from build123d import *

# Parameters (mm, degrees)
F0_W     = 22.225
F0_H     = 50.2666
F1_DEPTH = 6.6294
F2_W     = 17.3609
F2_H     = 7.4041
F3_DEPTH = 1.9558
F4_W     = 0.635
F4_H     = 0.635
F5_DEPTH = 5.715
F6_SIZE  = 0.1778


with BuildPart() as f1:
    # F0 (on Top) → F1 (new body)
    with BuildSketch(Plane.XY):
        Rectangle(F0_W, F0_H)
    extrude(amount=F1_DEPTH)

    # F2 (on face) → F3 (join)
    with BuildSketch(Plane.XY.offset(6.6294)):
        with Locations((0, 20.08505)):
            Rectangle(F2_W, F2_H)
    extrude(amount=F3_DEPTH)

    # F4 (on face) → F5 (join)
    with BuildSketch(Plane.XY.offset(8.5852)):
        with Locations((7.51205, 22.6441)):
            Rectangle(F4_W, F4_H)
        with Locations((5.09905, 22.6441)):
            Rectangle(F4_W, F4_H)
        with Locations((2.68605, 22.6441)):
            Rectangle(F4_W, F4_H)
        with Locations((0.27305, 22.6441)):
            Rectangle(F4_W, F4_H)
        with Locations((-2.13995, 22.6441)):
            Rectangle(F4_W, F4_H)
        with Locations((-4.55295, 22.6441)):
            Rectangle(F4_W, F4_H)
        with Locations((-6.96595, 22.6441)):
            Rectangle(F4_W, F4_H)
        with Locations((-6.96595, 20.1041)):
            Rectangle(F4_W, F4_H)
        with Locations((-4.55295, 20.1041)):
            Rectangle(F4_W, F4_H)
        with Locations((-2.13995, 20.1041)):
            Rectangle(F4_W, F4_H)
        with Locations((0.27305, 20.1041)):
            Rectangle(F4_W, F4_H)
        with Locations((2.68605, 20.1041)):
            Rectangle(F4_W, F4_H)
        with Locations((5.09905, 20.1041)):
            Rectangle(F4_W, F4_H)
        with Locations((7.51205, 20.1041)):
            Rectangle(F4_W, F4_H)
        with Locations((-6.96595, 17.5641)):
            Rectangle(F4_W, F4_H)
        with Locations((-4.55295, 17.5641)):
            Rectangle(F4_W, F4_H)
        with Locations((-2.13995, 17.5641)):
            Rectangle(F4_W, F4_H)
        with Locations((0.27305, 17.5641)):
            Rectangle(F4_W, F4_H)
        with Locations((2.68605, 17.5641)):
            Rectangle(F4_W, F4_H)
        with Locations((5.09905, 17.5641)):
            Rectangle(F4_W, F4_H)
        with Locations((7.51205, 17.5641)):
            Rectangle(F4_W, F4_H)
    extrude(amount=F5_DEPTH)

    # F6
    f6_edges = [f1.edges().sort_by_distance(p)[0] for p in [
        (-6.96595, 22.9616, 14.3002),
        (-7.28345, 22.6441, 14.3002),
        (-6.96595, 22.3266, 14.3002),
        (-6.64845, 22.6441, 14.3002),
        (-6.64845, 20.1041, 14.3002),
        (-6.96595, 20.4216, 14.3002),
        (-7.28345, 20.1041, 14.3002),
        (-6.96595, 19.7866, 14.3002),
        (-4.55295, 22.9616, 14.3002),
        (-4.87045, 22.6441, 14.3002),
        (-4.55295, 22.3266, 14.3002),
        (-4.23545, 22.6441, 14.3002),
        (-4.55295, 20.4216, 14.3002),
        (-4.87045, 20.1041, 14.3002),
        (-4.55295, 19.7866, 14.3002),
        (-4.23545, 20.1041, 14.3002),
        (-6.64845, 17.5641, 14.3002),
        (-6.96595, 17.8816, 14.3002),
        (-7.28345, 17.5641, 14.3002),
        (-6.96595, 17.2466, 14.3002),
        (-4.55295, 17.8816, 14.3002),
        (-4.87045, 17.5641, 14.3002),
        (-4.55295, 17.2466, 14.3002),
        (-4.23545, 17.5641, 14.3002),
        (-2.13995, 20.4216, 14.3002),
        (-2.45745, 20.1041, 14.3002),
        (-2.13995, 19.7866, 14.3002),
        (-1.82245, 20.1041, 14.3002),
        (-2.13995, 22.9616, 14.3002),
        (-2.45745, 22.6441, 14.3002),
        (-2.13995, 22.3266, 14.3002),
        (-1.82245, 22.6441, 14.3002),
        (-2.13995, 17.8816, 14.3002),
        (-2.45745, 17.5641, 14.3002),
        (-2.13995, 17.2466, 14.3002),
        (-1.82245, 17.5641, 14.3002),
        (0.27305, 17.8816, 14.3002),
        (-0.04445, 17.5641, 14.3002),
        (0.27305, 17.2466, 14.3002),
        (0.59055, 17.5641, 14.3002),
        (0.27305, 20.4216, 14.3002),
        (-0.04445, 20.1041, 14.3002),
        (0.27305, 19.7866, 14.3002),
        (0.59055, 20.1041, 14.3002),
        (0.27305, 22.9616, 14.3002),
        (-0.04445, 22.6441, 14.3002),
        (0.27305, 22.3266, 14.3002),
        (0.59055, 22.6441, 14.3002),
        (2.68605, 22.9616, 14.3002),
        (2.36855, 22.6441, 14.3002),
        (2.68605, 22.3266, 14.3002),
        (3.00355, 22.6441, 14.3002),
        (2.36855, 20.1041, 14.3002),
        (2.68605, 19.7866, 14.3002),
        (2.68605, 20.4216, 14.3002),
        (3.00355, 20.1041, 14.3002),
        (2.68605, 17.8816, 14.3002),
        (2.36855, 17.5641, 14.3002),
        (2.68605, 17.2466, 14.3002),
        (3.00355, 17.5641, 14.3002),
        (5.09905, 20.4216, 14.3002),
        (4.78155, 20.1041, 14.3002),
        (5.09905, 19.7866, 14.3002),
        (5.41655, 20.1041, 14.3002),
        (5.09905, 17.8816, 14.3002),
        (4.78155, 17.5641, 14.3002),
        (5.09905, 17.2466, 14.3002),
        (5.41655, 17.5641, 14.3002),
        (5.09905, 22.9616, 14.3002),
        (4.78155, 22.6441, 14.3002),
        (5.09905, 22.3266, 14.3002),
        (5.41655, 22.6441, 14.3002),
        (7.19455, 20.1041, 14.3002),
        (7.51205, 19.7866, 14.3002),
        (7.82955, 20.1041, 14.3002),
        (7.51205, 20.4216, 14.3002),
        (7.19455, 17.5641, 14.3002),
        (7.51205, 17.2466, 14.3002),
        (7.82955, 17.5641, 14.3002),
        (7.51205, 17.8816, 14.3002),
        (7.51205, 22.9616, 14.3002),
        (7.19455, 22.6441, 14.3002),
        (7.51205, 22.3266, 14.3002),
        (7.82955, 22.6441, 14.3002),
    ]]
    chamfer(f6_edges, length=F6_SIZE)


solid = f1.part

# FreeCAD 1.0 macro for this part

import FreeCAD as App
import Part
import Sketcher
Q = App.Units.Quantity


def edges_at(feature, points):
    """Names of the edges that pass closest to the given points."""
    edges = feature.Shape.Edges
    near = lambda p: min(range(len(edges)), key=lambda i: edges[i].distToShape(Part.Vertex(*p))[0])
    return sorted({f"Edge{near(p) + 1}" for p in points})


def add_polygon(sketch, points):
    """Adds a closed chain of lines whose ends are joined by coincident constraints."""
    first, n = sketch.GeometryCount, len(points)
    for a, b in zip(points, points[1:] + points[:1]):
        sketch.addGeometry(Part.LineSegment(App.Vector(*a, 0), App.Vector(*b, 0)), False)
    for i in range(n):
        sketch.addConstraint(Sketcher.Constraint("Coincident", first + i, 2, first + (i + 1) % n, 1))

doc = App.newDocument("Part")
body = doc.addObject("PartDesign::Body", "Body")

sketch1 = doc.addObject("Sketcher::SketchObject", "Sketch")
body.addObject(sketch1)
sketch1.AttachmentSupport = (doc.XY_Plane, [""])
sketch1.MapMode = "FlatFace"
add_polygon(sketch1, [(-11.1125, 25.1333), (-11.1125, -25.1333), (11.1125, -25.1333), (11.1125, 25.1333)])
sketch1.addConstraint([
    Sketcher.Constraint("Vertical", 0),
    Sketcher.Constraint("Horizontal", 1),
    Sketcher.Constraint("Vertical", 2),
    Sketcher.Constraint("Horizontal", 3),
    Sketcher.Constraint("Symmetric", 0, 2, 2, 2, -1, 1),
    Sketcher.Constraint("DistanceX", 1, 1, 1, 2, Q("0.875 in")),
    Sketcher.Constraint("DistanceY", 0, 2, 0, 1, Q("1.979 in")),
])
pad1 = doc.addObject("PartDesign::Pad", "Pad")
body.addObject(pad1)
pad1.Profile = sketch1
pad1.Length = Q("0.261 in")

sketch2 = doc.addObject("Sketcher::SketchObject", "Sketch001")
body.addObject(sketch2)
sketch2.AttachmentSupport = (doc.XY_Plane, [""])
sketch2.MapMode = "FlatFace"
sketch2.AttachmentOffset = App.Placement(App.Vector(0, 0, 0.261 * 25.4), App.Rotation())
add_polygon(sketch2, [(-8.68045, 23.7871), (-8.68045, 16.383), (8.68045, 16.383), (8.68045, 23.7871)])
sketch2.addConstraint([
    Sketcher.Constraint("Vertical", 0),
    Sketcher.Constraint("Horizontal", 1),
    Sketcher.Constraint("Vertical", 2),
    Sketcher.Constraint("Horizontal", 3),
    Sketcher.Constraint("DistanceX", 1, 1, 1, 2, Q("0.6835 in")),
    Sketcher.Constraint("DistanceY", 0, 2, 0, 1, Q("0.2915 in")),
    Sketcher.Constraint("DistanceY", -1, 1, 0, 2, Q("0.645 in")),
    Sketcher.Constraint("DistanceX", 0, 2, -1, 1, 8.68045),
])
pad2 = doc.addObject("PartDesign::Pad", "Pad001")
body.addObject(pad2)
pad2.Profile = sketch2
pad2.Length = Q("0.077 in")

sketch3 = doc.addObject("Sketcher::SketchObject", "Sketch002")
body.addObject(sketch3)
sketch3.AttachmentSupport = (doc.XY_Plane, [""])
sketch3.MapMode = "FlatFace"
sketch3.AttachmentOffset = App.Placement(App.Vector(0, 0, 0.338 * 25.4), App.Rotation())
add_polygon(sketch3, [(7.19455, 22.9616), (7.19455, 22.3266), (7.82955, 22.3266), (7.82955, 22.9616)])
add_polygon(sketch3, [(4.78155, 22.9616), (4.78155, 22.3266), (5.41655, 22.3266), (5.41655, 22.9616)])
add_polygon(sketch3, [(2.36855, 22.9616), (2.36855, 22.3266), (3.00355, 22.3266), (3.00355, 22.9616)])
add_polygon(sketch3, [(-0.04445, 22.9616), (-0.04445, 22.3266), (0.59055, 22.3266), (0.59055, 22.9616)])
add_polygon(sketch3, [(-2.45745, 22.9616), (-2.45745, 22.3266), (-1.82245, 22.3266), (-1.82245, 22.9616)])
add_polygon(sketch3, [(-4.87045, 22.9616), (-4.87045, 22.3266), (-4.23545, 22.3266), (-4.23545, 22.9616)])
add_polygon(sketch3, [(-7.28345, 22.9616), (-7.28345, 22.3266), (-6.64845, 22.3266), (-6.64845, 22.9616)])
add_polygon(sketch3, [(-7.28345, 20.4216), (-7.28345, 19.7866), (-6.64845, 19.7866), (-6.64845, 20.4216)])
add_polygon(sketch3, [(-4.87045, 20.4216), (-4.87045, 19.7866), (-4.23545, 19.7866), (-4.23545, 20.4216)])
add_polygon(sketch3, [(-2.45745, 20.4216), (-2.45745, 19.7866), (-1.82245, 19.7866), (-1.82245, 20.4216)])
add_polygon(sketch3, [(-0.04445, 20.4216), (-0.04445, 19.7866), (0.59055, 19.7866), (0.59055, 20.4216)])
add_polygon(sketch3, [(2.36855, 20.4216), (2.36855, 19.7866), (3.00355, 19.7866), (3.00355, 20.4216)])
add_polygon(sketch3, [(4.78155, 20.4216), (4.78155, 19.7866), (5.41655, 19.7866), (5.41655, 20.4216)])
add_polygon(sketch3, [(7.19455, 20.4216), (7.19455, 19.7866), (7.82955, 19.7866), (7.82955, 20.4216)])
add_polygon(sketch3, [(-7.28345, 17.8816), (-7.28345, 17.2466), (-6.64845, 17.2466), (-6.64845, 17.8816)])
add_polygon(sketch3, [(-4.87045, 17.8816), (-4.87045, 17.2466), (-4.23545, 17.2466), (-4.23545, 17.8816)])
add_polygon(sketch3, [(-2.45745, 17.8816), (-2.45745, 17.2466), (-1.82245, 17.2466), (-1.82245, 17.8816)])
add_polygon(sketch3, [(-0.04445, 17.8816), (-0.04445, 17.2466), (0.59055, 17.2466), (0.59055, 17.8816)])
add_polygon(sketch3, [(2.36855, 17.8816), (2.36855, 17.2466), (3.00355, 17.2466), (3.00355, 17.8816)])
add_polygon(sketch3, [(4.78155, 17.8816), (4.78155, 17.2466), (5.41655, 17.2466), (5.41655, 17.8816)])
add_polygon(sketch3, [(7.19455, 17.8816), (7.19455, 17.2466), (7.82955, 17.2466), (7.82955, 17.8816)])
sketch3.addConstraint([
    Sketcher.Constraint("Vertical", 0),
    Sketcher.Constraint("Horizontal", 1),
    Sketcher.Constraint("Vertical", 2),
    Sketcher.Constraint("Horizontal", 3),
    Sketcher.Constraint("Vertical", 4),
    Sketcher.Constraint("Horizontal", 5),
    Sketcher.Constraint("Vertical", 6),
    Sketcher.Constraint("Horizontal", 7),
    Sketcher.Constraint("Vertical", 8),
    Sketcher.Constraint("Horizontal", 9),
    Sketcher.Constraint("Vertical", 10),
    Sketcher.Constraint("Horizontal", 11),
    Sketcher.Constraint("Vertical", 12),
    Sketcher.Constraint("Horizontal", 13),
    Sketcher.Constraint("Vertical", 14),
    Sketcher.Constraint("Horizontal", 15),
    Sketcher.Constraint("Vertical", 16),
    Sketcher.Constraint("Horizontal", 17),
    Sketcher.Constraint("Vertical", 18),
    Sketcher.Constraint("Horizontal", 19),
    Sketcher.Constraint("Vertical", 20),
    Sketcher.Constraint("Horizontal", 21),
    Sketcher.Constraint("Vertical", 22),
    Sketcher.Constraint("Horizontal", 23),
    Sketcher.Constraint("Vertical", 24),
    Sketcher.Constraint("Horizontal", 25),
    Sketcher.Constraint("Vertical", 26),
    Sketcher.Constraint("Horizontal", 27),
    Sketcher.Constraint("Vertical", 28),
    Sketcher.Constraint("Horizontal", 29),
    Sketcher.Constraint("Vertical", 30),
    Sketcher.Constraint("Horizontal", 31),
    Sketcher.Constraint("Vertical", 32),
    Sketcher.Constraint("Horizontal", 33),
    Sketcher.Constraint("Vertical", 34),
    Sketcher.Constraint("Horizontal", 35),
    Sketcher.Constraint("Vertical", 36),
    Sketcher.Constraint("Horizontal", 37),
    Sketcher.Constraint("Vertical", 38),
    Sketcher.Constraint("Horizontal", 39),
    Sketcher.Constraint("Vertical", 40),
    Sketcher.Constraint("Horizontal", 41),
    Sketcher.Constraint("Vertical", 42),
    Sketcher.Constraint("Horizontal", 43),
    Sketcher.Constraint("Vertical", 44),
    Sketcher.Constraint("Horizontal", 45),
    Sketcher.Constraint("Vertical", 46),
    Sketcher.Constraint("Horizontal", 47),
    Sketcher.Constraint("Vertical", 48),
    Sketcher.Constraint("Horizontal", 49),
    Sketcher.Constraint("Vertical", 50),
    Sketcher.Constraint("Horizontal", 51),
    Sketcher.Constraint("Vertical", 52),
    Sketcher.Constraint("Horizontal", 53),
    Sketcher.Constraint("Vertical", 54),
    Sketcher.Constraint("Horizontal", 55),
    Sketcher.Constraint("Vertical", 56),
    Sketcher.Constraint("Horizontal", 57),
    Sketcher.Constraint("Vertical", 58),
    Sketcher.Constraint("Horizontal", 59),
    Sketcher.Constraint("Vertical", 60),
    Sketcher.Constraint("Horizontal", 61),
    Sketcher.Constraint("Vertical", 62),
    Sketcher.Constraint("Horizontal", 63),
    Sketcher.Constraint("Vertical", 64),
    Sketcher.Constraint("Horizontal", 65),
    Sketcher.Constraint("Vertical", 66),
    Sketcher.Constraint("Horizontal", 67),
    Sketcher.Constraint("Vertical", 68),
    Sketcher.Constraint("Horizontal", 69),
    Sketcher.Constraint("Vertical", 70),
    Sketcher.Constraint("Horizontal", 71),
    Sketcher.Constraint("Vertical", 72),
    Sketcher.Constraint("Horizontal", 73),
    Sketcher.Constraint("Vertical", 74),
    Sketcher.Constraint("Horizontal", 75),
    Sketcher.Constraint("Vertical", 76),
    Sketcher.Constraint("Horizontal", 77),
    Sketcher.Constraint("Vertical", 78),
    Sketcher.Constraint("Horizontal", 79),
    Sketcher.Constraint("Vertical", 80),
    Sketcher.Constraint("Horizontal", 81),
    Sketcher.Constraint("Vertical", 82),
    Sketcher.Constraint("Horizontal", 83),
    Sketcher.Constraint("Horizontal", 1, 2, 4, 2),
    Sketcher.Constraint("Horizontal", 3, 2, 6, 2),
    Sketcher.Constraint("Horizontal", 5, 2, 8, 2),
    Sketcher.Constraint("Horizontal", 7, 2, 10, 2),
    Sketcher.Constraint("Horizontal", 9, 2, 12, 2),
    Sketcher.Constraint("Horizontal", 11, 2, 14, 2),
    Sketcher.Constraint("Horizontal", 13, 2, 16, 2),
    Sketcher.Constraint("Horizontal", 15, 2, 18, 2),
    Sketcher.Constraint("Horizontal", 17, 2, 20, 2),
    Sketcher.Constraint("Horizontal", 19, 2, 22, 2),
    Sketcher.Constraint("Horizontal", 21, 2, 24, 2),
    Sketcher.Constraint("Horizontal", 23, 2, 26, 2),
    Sketcher.Constraint("Horizontal", 29, 2, 32, 2),
    Sketcher.Constraint("Horizontal", 31, 2, 34, 2),
    Sketcher.Constraint("Horizontal", 33, 2, 36, 2),
    Sketcher.Constraint("Horizontal", 35, 2, 38, 2),
    Sketcher.Constraint("Horizontal", 37, 2, 40, 2),
    Sketcher.Constraint("Horizontal", 39, 2, 42, 2),
    Sketcher.Constraint("Horizontal", 41, 2, 44, 2),
    Sketcher.Constraint("Horizontal", 43, 2, 46, 2),
    Sketcher.Constraint("Horizontal", 45, 2, 48, 2),
    Sketcher.Constraint("Horizontal", 47, 2, 50, 2),
    Sketcher.Constraint("Horizontal", 49, 2, 52, 2),
    Sketcher.Constraint("Horizontal", 51, 2, 54, 2),
    Sketcher.Constraint("Horizontal", 57, 2, 60, 2),
    Sketcher.Constraint("Horizontal", 59, 2, 62, 2),
    Sketcher.Constraint("Horizontal", 61, 2, 64, 2),
    Sketcher.Constraint("Horizontal", 63, 2, 66, 2),
    Sketcher.Constraint("Horizontal", 65, 2, 68, 2),
    Sketcher.Constraint("Horizontal", 67, 2, 70, 2),
    Sketcher.Constraint("Horizontal", 69, 2, 72, 2),
    Sketcher.Constraint("Horizontal", 71, 2, 74, 2),
    Sketcher.Constraint("Horizontal", 73, 2, 76, 2),
    Sketcher.Constraint("Horizontal", 75, 2, 78, 2),
    Sketcher.Constraint("Horizontal", 77, 2, 80, 2),
    Sketcher.Constraint("Horizontal", 79, 2, 82, 2),
    Sketcher.Constraint("Vertical", 27, 2, 28, 2),
    Sketcher.Constraint("Vertical", 26, 2, 29, 2),
    Sketcher.Constraint("Vertical", 23, 2, 32, 2),
    Sketcher.Constraint("Vertical", 22, 2, 33, 2),
    Sketcher.Constraint("Vertical", 19, 2, 36, 2),
    Sketcher.Constraint("Vertical", 18, 2, 37, 2),
    Sketcher.Constraint("Vertical", 15, 2, 40, 2),
    Sketcher.Constraint("Vertical", 14, 2, 41, 2),
    Sketcher.Constraint("Vertical", 11, 2, 44, 2),
    Sketcher.Constraint("Vertical", 10, 2, 45, 2),
    Sketcher.Constraint("Vertical", 7, 2, 48, 2),
    Sketcher.Constraint("Vertical", 6, 2, 49, 2),
    Sketcher.Constraint("Vertical", 3, 2, 52, 2),
    Sketcher.Constraint("Vertical", 2, 2, 53, 2),
    Sketcher.Constraint("Vertical", 31, 2, 56, 2),
    Sketcher.Constraint("Vertical", 30, 2, 57, 2),
    Sketcher.Constraint("Vertical", 35, 2, 60, 2),
    Sketcher.Constraint("Vertical", 34, 2, 61, 2),
    Sketcher.Constraint("Vertical", 39, 2, 64, 2),
    Sketcher.Constraint("Vertical", 38, 2, 65, 2),
    Sketcher.Constraint("Vertical", 43, 2, 68, 2),
    Sketcher.Constraint("Vertical", 42, 2, 69, 2),
    Sketcher.Constraint("Vertical", 47, 2, 72, 2),
    Sketcher.Constraint("Vertical", 46, 2, 73, 2),
    Sketcher.Constraint("Vertical", 51, 2, 76, 2),
    Sketcher.Constraint("Vertical", 50, 2, 77, 2),
    Sketcher.Constraint("Vertical", 55, 2, 80, 2),
    Sketcher.Constraint("Vertical", 54, 2, 81, 2),
    Sketcher.Constraint("Equal", 3, 5),
    Sketcher.Constraint("Equal", 7, 9),
    Sketcher.Constraint("Equal", 11, 13),
    Sketcher.Constraint("Equal", 15, 17),
    Sketcher.Constraint("Equal", 19, 21),
    Sketcher.Constraint("Equal", 23, 25),
    Sketcher.Constraint("Equal", 83, 0),
    Sketcher.Constraint("Equal", 26, 28),
    Sketcher.Constraint("Equal", 54, 56),
    Sketcher.Constraint("DistanceX", 1, 1, 1, 2, Q("0.025 in")),
    Sketcher.Constraint("DistanceY", -1, 1, 0, 2, Q("0.879 in")),
    Sketcher.Constraint("DistanceY", -1, 1, 28, 2, Q("0.779 in")),
    Sketcher.Constraint("DistanceY", -1, 1, 56, 2, Q("0.679 in")),
    Sketcher.Constraint("DistanceX", -1, 1, 0, 2, 7.19455),
    Sketcher.Constraint("DistanceX", -1, 1, 4, 2, 4.78155),
    Sketcher.Constraint("DistanceX", -1, 1, 8, 2, 2.36855),
    Sketcher.Constraint("DistanceX", 12, 2, -1, 1, 0.04445),
    Sketcher.Constraint("DistanceX", 16, 2, -1, 1, 2.45745),
    Sketcher.Constraint("DistanceX", 20, 2, -1, 1, 4.87045),
    Sketcher.Constraint("DistanceX", 24, 2, -1, 1, 7.28345),
])
pad3 = doc.addObject("PartDesign::Pad", "Pad002")
body.addObject(pad3)
pad3.Profile = sketch3
pad3.Length = Q("0.225 in")
doc.recompute()

chamfer = doc.addObject("PartDesign::Chamfer", "Chamfer")
body.addObject(chamfer)
chamfer.Base = (pad3, edges_at(pad3, [
    (-6.966, 22.962, 14.3),
    (-7.283, 22.644, 14.3),
    (-6.966, 22.327, 14.3),
    (-6.648, 22.644, 14.3),
    (-6.648, 20.104, 14.3),
    (-6.966, 20.422, 14.3),
    (-7.283, 20.104, 14.3),
    (-6.966, 19.787, 14.3),
    (-4.553, 22.962, 14.3),
    (-4.87, 22.644, 14.3),
    (-4.553, 22.327, 14.3),
    (-4.235, 22.644, 14.3),
    (-4.553, 20.422, 14.3),
    (-4.87, 20.104, 14.3),
    (-4.553, 19.787, 14.3),
    (-4.235, 20.104, 14.3),
    (-6.648, 17.564, 14.3),
    (-6.966, 17.882, 14.3),
    (-7.283, 17.564, 14.3),
    (-6.966, 17.247, 14.3),
    (-4.553, 17.882, 14.3),
    (-4.87, 17.564, 14.3),
    (-4.553, 17.247, 14.3),
    (-4.235, 17.564, 14.3),
    (-2.14, 20.422, 14.3),
    (-2.457, 20.104, 14.3),
    (-2.14, 19.787, 14.3),
    (-1.822, 20.104, 14.3),
    (-2.14, 22.962, 14.3),
    (-2.457, 22.644, 14.3),
    (-2.14, 22.327, 14.3),
    (-1.822, 22.644, 14.3),
    (-2.14, 17.882, 14.3),
    (-2.457, 17.564, 14.3),
    (-2.14, 17.247, 14.3),
    (-1.822, 17.564, 14.3),
    (0.273, 17.882, 14.3),
    (-0.044, 17.564, 14.3),
    (0.273, 17.247, 14.3),
    (0.591, 17.564, 14.3),
    (0.273, 20.422, 14.3),
    (-0.044, 20.104, 14.3),
    (0.273, 19.787, 14.3),
    (0.591, 20.104, 14.3),
    (0.273, 22.962, 14.3),
    (-0.044, 22.644, 14.3),
    (0.273, 22.327, 14.3),
    (0.591, 22.644, 14.3),
    (2.686, 22.962, 14.3),
    (2.369, 22.644, 14.3),
    (2.686, 22.327, 14.3),
    (3.004, 22.644, 14.3),
    (2.369, 20.104, 14.3),
    (2.686, 19.787, 14.3),
    (2.686, 20.422, 14.3),
    (3.004, 20.104, 14.3),
    (2.686, 17.882, 14.3),
    (2.369, 17.564, 14.3),
    (2.686, 17.247, 14.3),
    (3.004, 17.564, 14.3),
    (5.099, 20.422, 14.3),
    (4.782, 20.104, 14.3),
    (5.099, 19.787, 14.3),
    (5.417, 20.104, 14.3),
    (5.099, 17.882, 14.3),
    (4.782, 17.564, 14.3),
    (5.099, 17.247, 14.3),
    (5.417, 17.564, 14.3),
    (5.099, 22.962, 14.3),
    (4.782, 22.644, 14.3),
    (5.099, 22.327, 14.3),
    (5.417, 22.644, 14.3),
    (7.195, 20.104, 14.3),
    (7.512, 19.787, 14.3),
    (7.83, 20.104, 14.3),
    (7.512, 20.422, 14.3),
    (7.195, 17.564, 14.3),
    (7.512, 17.247, 14.3),
    (7.83, 17.564, 14.3),
    (7.512, 17.882, 14.3),
    (7.512, 22.962, 14.3),
    (7.195, 22.644, 14.3),
    (7.512, 22.327, 14.3),
    (7.83, 22.644, 14.3),
]))
chamfer.Size = Q("0.007 in")

doc.recompute()
